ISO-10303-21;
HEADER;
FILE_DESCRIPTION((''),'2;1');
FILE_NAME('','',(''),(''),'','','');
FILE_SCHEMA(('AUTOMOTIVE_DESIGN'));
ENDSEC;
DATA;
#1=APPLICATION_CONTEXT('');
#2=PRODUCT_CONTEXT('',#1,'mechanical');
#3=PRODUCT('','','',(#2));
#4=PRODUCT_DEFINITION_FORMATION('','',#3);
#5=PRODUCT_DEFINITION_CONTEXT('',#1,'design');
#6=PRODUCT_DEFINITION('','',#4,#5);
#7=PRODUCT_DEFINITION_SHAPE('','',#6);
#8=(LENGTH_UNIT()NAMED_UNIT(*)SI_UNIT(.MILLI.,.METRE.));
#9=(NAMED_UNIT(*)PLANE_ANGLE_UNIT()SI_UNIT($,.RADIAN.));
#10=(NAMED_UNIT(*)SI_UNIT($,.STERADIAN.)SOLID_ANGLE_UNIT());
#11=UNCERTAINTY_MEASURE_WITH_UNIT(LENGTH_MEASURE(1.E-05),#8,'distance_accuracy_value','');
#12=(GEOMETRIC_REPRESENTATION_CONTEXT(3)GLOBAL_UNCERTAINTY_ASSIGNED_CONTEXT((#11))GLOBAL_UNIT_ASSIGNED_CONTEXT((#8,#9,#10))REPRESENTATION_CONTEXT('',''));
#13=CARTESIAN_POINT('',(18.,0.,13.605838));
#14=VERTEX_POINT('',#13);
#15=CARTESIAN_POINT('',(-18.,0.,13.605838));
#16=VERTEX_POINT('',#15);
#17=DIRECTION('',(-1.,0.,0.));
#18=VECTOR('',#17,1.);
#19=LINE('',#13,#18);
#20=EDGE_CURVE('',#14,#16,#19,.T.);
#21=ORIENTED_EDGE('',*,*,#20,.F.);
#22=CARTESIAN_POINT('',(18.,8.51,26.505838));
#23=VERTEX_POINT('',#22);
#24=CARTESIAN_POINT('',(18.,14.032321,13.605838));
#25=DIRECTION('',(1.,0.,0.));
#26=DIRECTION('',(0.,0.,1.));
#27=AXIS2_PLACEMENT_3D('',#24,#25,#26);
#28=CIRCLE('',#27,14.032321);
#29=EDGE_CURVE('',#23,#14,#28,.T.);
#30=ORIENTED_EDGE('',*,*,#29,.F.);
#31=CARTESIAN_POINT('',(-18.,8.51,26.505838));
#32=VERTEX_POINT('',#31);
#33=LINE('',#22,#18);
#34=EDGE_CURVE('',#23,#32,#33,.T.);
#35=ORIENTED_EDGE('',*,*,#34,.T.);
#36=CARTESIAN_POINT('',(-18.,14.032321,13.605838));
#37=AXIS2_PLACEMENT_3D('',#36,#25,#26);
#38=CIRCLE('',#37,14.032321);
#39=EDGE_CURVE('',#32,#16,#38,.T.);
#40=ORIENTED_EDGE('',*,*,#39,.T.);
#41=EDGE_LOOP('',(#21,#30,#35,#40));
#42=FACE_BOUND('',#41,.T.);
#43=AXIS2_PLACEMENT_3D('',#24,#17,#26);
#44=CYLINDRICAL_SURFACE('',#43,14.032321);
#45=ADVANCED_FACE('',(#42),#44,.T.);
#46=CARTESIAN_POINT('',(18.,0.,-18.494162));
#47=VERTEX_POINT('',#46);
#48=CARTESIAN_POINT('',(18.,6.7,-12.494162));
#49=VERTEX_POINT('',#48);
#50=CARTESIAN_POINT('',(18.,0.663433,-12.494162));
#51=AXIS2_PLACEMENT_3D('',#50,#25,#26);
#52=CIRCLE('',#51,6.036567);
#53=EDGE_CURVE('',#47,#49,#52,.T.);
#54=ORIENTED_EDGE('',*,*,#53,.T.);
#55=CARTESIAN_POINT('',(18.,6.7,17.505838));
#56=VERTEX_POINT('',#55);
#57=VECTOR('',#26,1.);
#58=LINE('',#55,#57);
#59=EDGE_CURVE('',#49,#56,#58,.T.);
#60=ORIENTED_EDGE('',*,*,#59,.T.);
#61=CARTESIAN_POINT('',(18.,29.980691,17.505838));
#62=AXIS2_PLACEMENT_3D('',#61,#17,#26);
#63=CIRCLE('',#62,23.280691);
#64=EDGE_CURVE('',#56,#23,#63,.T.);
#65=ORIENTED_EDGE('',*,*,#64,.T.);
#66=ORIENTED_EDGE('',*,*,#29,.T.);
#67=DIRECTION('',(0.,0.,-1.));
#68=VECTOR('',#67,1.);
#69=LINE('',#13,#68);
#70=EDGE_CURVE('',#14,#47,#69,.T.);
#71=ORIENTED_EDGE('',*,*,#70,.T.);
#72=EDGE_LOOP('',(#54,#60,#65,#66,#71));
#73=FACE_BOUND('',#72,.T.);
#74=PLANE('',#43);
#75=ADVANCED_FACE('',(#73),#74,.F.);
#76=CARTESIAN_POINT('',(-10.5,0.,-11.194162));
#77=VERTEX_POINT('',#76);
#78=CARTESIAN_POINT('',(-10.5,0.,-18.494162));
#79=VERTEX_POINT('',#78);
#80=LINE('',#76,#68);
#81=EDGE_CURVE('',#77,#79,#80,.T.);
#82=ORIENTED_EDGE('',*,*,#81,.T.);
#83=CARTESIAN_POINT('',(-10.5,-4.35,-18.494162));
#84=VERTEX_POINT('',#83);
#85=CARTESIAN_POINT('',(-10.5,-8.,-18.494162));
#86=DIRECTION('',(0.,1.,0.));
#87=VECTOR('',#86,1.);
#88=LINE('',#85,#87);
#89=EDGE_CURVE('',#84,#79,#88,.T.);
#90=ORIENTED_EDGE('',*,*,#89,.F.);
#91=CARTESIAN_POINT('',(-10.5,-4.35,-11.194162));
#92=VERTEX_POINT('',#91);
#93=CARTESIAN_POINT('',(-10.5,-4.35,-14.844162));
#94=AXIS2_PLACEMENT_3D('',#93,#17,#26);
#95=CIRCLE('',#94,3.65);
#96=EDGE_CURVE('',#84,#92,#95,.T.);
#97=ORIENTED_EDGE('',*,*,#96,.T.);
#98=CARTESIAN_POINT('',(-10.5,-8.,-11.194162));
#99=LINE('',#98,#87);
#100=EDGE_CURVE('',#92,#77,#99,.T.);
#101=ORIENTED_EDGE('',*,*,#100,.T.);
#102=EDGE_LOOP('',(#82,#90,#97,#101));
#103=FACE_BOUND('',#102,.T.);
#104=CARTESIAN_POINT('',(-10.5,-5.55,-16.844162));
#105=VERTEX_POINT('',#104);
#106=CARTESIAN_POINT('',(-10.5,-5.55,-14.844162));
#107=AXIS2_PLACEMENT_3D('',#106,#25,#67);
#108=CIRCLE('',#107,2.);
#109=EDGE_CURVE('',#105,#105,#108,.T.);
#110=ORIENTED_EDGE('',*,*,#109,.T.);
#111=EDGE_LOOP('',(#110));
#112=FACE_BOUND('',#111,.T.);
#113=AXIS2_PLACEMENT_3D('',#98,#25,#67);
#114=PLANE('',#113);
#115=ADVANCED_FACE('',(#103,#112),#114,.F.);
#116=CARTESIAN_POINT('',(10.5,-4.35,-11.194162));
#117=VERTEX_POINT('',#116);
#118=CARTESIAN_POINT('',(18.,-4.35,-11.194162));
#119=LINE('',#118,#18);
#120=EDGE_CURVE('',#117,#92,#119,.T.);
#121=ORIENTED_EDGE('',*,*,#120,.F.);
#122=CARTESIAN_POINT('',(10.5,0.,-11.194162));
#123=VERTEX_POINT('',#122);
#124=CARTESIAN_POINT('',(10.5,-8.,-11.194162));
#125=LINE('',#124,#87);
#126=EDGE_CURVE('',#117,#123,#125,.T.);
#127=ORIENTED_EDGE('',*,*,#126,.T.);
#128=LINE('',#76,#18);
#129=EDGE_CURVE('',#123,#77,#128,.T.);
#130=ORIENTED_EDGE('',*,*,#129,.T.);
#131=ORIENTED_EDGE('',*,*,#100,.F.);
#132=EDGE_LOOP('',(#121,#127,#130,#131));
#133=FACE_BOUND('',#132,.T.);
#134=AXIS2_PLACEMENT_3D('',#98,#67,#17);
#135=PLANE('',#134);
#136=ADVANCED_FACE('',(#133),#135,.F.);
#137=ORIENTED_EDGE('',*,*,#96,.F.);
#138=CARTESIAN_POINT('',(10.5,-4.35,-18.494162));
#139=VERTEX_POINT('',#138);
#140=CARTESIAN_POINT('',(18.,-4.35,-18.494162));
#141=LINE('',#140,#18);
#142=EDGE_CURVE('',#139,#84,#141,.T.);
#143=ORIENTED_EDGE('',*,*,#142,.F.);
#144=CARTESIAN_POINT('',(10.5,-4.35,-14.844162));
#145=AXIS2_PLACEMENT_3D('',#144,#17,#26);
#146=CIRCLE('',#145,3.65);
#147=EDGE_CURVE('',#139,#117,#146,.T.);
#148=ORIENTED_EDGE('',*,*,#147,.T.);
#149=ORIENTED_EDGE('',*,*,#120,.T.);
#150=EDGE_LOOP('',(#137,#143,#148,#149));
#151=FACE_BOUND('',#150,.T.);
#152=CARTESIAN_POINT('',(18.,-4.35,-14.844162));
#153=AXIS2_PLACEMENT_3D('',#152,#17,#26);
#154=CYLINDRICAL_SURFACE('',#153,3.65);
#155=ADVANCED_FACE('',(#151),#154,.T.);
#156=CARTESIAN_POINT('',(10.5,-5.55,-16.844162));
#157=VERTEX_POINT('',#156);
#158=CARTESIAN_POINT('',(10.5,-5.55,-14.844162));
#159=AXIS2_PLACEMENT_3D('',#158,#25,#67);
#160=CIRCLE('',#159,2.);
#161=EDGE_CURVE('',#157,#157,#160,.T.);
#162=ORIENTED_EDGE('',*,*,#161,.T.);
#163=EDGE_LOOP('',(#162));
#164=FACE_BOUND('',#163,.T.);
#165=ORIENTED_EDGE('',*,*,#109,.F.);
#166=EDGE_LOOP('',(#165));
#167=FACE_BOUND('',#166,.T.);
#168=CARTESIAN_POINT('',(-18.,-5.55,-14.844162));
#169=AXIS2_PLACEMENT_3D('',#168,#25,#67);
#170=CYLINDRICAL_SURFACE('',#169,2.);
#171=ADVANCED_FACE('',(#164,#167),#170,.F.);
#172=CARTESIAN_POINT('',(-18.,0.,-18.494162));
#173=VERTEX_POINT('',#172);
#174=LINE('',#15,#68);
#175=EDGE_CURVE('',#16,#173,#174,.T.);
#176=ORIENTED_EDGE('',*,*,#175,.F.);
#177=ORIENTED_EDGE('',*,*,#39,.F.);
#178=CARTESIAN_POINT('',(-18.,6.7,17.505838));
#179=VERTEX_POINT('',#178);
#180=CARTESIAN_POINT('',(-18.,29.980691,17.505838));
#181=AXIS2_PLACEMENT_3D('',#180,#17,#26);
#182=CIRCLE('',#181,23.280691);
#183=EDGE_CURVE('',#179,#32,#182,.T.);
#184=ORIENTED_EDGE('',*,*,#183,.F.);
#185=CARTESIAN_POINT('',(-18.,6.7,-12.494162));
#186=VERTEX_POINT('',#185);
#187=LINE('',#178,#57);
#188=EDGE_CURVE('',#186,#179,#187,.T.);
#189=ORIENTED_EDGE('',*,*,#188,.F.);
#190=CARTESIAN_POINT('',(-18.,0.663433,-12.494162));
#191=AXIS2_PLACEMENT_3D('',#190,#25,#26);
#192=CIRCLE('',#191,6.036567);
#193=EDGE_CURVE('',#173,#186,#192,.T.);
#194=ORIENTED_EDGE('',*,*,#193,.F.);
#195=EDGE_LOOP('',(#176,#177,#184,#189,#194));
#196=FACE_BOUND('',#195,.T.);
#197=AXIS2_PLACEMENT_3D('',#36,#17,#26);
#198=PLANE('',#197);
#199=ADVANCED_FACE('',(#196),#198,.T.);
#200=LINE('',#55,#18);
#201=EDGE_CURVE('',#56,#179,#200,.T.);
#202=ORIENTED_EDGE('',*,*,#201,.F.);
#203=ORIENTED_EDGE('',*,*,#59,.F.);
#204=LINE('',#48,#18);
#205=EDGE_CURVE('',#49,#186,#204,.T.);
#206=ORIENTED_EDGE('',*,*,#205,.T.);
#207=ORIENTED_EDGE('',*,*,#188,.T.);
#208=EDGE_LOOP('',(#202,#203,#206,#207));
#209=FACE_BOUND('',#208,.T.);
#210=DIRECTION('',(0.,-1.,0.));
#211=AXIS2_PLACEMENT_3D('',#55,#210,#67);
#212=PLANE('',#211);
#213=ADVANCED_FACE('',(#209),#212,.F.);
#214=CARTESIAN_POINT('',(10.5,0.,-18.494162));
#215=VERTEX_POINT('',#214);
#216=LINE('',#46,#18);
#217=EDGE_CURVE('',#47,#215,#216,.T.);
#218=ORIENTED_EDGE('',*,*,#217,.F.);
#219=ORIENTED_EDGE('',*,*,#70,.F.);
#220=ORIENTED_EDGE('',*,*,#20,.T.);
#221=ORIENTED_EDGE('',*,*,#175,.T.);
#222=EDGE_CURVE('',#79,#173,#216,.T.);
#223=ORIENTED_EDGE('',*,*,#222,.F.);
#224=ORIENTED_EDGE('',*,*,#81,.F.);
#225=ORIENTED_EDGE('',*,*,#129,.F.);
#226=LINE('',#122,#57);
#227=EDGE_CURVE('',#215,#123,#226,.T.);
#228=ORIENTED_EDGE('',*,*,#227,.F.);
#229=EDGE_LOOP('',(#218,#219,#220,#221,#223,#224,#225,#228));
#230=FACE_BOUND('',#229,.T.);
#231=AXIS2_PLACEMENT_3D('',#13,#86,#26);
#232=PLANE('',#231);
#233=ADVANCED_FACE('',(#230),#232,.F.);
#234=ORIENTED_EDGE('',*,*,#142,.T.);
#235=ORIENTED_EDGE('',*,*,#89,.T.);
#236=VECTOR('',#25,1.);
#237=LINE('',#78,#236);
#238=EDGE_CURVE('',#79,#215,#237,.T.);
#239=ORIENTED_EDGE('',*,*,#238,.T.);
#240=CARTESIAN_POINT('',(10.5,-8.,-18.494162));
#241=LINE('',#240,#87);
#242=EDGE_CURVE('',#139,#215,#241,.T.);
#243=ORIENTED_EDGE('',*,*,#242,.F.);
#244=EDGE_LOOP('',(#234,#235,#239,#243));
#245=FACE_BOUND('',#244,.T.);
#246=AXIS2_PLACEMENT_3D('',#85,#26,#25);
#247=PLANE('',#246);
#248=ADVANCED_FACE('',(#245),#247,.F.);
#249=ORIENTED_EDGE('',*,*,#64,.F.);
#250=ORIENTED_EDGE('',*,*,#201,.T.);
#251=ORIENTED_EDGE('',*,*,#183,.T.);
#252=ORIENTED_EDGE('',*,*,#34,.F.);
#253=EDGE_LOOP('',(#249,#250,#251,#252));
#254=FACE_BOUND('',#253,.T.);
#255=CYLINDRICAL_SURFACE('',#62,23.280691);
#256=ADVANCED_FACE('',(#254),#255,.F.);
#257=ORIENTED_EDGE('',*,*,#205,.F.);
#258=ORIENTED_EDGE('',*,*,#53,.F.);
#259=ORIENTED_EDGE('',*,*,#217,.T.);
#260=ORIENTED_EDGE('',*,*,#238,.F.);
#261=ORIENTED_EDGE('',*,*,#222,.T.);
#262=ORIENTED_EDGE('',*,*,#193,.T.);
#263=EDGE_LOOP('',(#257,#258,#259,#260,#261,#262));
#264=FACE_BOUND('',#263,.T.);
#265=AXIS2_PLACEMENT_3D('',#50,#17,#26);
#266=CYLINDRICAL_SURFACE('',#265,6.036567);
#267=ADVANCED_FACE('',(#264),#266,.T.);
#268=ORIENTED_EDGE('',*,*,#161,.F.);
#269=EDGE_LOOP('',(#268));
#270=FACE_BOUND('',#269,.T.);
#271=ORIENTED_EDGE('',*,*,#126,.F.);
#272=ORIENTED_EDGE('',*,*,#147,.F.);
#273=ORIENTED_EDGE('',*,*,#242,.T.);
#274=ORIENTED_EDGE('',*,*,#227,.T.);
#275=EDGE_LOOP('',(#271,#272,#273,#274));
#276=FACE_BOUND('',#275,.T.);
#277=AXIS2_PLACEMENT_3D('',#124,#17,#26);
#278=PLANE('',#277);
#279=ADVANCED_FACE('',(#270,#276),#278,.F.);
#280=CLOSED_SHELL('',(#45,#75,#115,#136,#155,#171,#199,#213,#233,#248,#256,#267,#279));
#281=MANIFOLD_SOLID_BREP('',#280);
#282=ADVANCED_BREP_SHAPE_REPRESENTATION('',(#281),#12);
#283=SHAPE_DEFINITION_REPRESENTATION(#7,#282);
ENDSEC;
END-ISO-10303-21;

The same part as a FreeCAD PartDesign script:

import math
import FreeCAD as App
import Part
import Sketcher
from FreeCAD import Vector


def add_polygon(sketch, points):
    """Adds a closed chain of lines whose ends are joined by coincident constraints."""
    first, n = sketch.GeometryCount, len(points)
    for a, b in zip(points, points[1:] + points[:1]):
        sketch.addGeometry(Part.LineSegment(App.Vector(*a, 0), App.Vector(*b, 0)), False)
    for i in range(n):
        sketch.addConstraint(Sketcher.Constraint("Coincident", first + i, 2, first + (i + 1) % n, 1))

doc = App.newDocument("Part")
body = doc.addObject("PartDesign::Body", "Body")

sketch1 = body.newObject("Sketcher::SketchObject", "Sketch")
sketch1.AttachmentSupport = (doc.getObject("YZ_Plane"), [""])
sketch1.MapMode = "FlatFace"
sketch1.addGeometry([
    Part.LineSegment(Vector(0, 13.605838, 0), Vector(0, -18.494162, 0)),
    Part.ArcOfCircle(Part.Circle(Vector(0.663433, -12.494162, 0), Vector(0, 0, 1), 6.036567), math.radians(-96.309686), math.radians(0)),
    Part.LineSegment(Vector(6.7, -12.494162, 0), Vector(6.7, 17.505838, 0)),
    Part.ArcOfCircle(Part.Circle(Vector(29.980691, 17.505838, 0), Vector(0, 0, 1), 23.280691), math.radians(157.257734), math.radians(180)),
    Part.ArcOfCircle(Part.Circle(Vector(14.032321, 13.605838, 0), Vector(0, 0, 1), 14.032321), math.radians(113.175132), math.radians(180)),
], False)
sketch1.addConstraint([
    Sketcher.Constraint("Coincident", 0, 2, 1, 1),
    Sketcher.Constraint("Tangent", 1, 2, 2, 1),
    Sketcher.Constraint("Tangent", 2, 2, 3, 2),
    Sketcher.Constraint("Coincident", 3, 1, 4, 1),
    Sketcher.Constraint("Tangent", 4, 2, 0, 1),
    Sketcher.Constraint("Vertical", 0),
    Sketcher.Constraint("Vertical", 2),
    Sketcher.Constraint("PointOnObject", 0, 2, -2),
    Sketcher.Constraint("DistanceY", 2, 1, 2, 2, 30.0),
    Sketcher.Constraint("DistanceY", 0, 2, 0, 1, 32.1),
    Sketcher.Constraint("DistanceY", 0, 2, 1, 3, 6.0),
    Sketcher.Constraint("DistanceY", 2, 2, 3, 1, 9.0),
    Sketcher.Constraint("DistanceX", -1, 1, 1, 2, 6.7),
    Sketcher.Constraint("DistanceX", -1, 1, 3, 1, 8.51),
    Sketcher.Constraint("DistanceY", 1, 3, -1, 1, 12.494162),
])
pad1 = body.newObject("PartDesign::Pad", "Pad")
pad1.Profile = sketch1
pad1.Length = 36
pad1.Midplane = True

sketch2 = body.newObject("Sketcher::SketchObject", "Sketch001")
sketch2.AttachmentSupport = (doc.getObject("XZ_Plane"), [""])
sketch2.MapMode = "FlatFace"
add_polygon(sketch2, [(-10.5, -11.194162), (-10.5, -18.494162), (10.5, -18.494162), (10.5, -11.194162)])
sketch2.addConstraint([
    Sketcher.Constraint("Vertical", 0),
    Sketcher.Constraint("Horizontal", 1),
    Sketcher.Constraint("Vertical", 2),
    Sketcher.Constraint("Horizontal", 3),
    Sketcher.Constraint("DistanceX", 1, 1, 1, 2, 21.0),
    Sketcher.Constraint("DistanceY", 0, 2, 0, 1, 7.3),
    Sketcher.Constraint("DistanceX", 0, 2, -1, 1, 10.5),
    Sketcher.Constraint("DistanceY", 0, 2, -1, 1, 18.494162),
])
pad2 = body.newObject("PartDesign::Pad", "Pad001")
pad2.Profile = sketch2
pad2.Length = 8

sketch3 = body.newObject("Sketcher::SketchObject", "Sketch002")
sketch3.AttachmentSupport = (doc.getObject("YZ_Plane"), [""])
sketch3.MapMode = "FlatFace"
sketch3.AttachmentOffset = App.Placement(Vector(0, 0, -10.5), App.Rotation())
sketch3.addGeometry([
    Part.LineSegment(Vector(-4.35, -18.494162, 0), Vector(-8, -18.494162, 0)),
    Part.LineSegment(Vector(-8, -18.494162, 0), Vector(-8, -14.844162, 0)),
    Part.ArcOfCircle(Part.Circle(Vector(-4.35, -14.844162, 0), Vector(0, 0, 1), 3.65), math.radians(-180), math.radians(-90)),
    Part.ArcOfCircle(Part.Circle(Vector(-4.35, -14.844162, 0), Vector(0, 0, 1), 3.65), math.radians(90), math.radians(180)),
    Part.LineSegment(Vector(-8, -14.844162, 0), Vector(-8, -11.194162, 0)),
    Part.LineSegment(Vector(-8, -11.194162, 0), Vector(-4.35, -11.194162, 0)),
], False)
sketch3.addConstraint([
    Sketcher.Constraint("Coincident", 0, 2, 1, 1),
    Sketcher.Constraint("Tangent", 1, 2, 2, 1),
    Sketcher.Constraint("Tangent", 2, 2, 0, 1),
    Sketcher.Constraint("Tangent", 3, 2, 4, 1),
    Sketcher.Constraint("Coincident", 4, 2, 5, 1),
    Sketcher.Constraint("Tangent", 5, 2, 3, 1),
    Sketcher.Constraint("Horizontal", 0),
    Sketcher.Constraint("Vertical", 1),
    Sketcher.Constraint("Vertical", 4),
    Sketcher.Constraint("Horizontal", 5),
    Sketcher.Constraint("Coincident", 3, 3, 2, 3),
    Sketcher.Constraint("Equal", 2, 3),
    Sketcher.Constraint("Radius", 2, 3.65),
    Sketcher.Constraint("DistanceX", 0, 2, -1, 1, 8.0),
    Sketcher.Constraint("DistanceY", 2, 3, -1, 1, 14.844162),
])
pocket1 = body.newObject("PartDesign::Pocket", "Pocket")
pocket1.Profile = sketch3
pocket1.Type = "ThroughAll"
pocket1.Reversed = True

sketch4 = body.newObject("Sketcher::SketchObject", "Sketch003")
sketch4.AttachmentSupport = (doc.getObject("YZ_Plane"), [""])
sketch4.MapMode = "FlatFace"
sketch4.AttachmentOffset = App.Placement(Vector(0, 0, 10.5), App.Rotation())
sketch4.addGeometry(Part.Circle(Vector(-5.55, -14.844162, 0), Vector(0, 0, 1), 2), False)
sketch4.addConstraint([
    Sketcher.Constraint("Diameter", 0, 4.0),
    Sketcher.Constraint("DistanceX", 0, 3, -1, 1, 5.55),
    Sketcher.Constraint("DistanceY", 0, 3, -1, 1, 14.844162),
])
pocket2 = body.newObject("PartDesign::Pocket", "Pocket001")
pocket2.Profile = sketch4
pocket2.Type = "ThroughAll"

doc.recompute()
